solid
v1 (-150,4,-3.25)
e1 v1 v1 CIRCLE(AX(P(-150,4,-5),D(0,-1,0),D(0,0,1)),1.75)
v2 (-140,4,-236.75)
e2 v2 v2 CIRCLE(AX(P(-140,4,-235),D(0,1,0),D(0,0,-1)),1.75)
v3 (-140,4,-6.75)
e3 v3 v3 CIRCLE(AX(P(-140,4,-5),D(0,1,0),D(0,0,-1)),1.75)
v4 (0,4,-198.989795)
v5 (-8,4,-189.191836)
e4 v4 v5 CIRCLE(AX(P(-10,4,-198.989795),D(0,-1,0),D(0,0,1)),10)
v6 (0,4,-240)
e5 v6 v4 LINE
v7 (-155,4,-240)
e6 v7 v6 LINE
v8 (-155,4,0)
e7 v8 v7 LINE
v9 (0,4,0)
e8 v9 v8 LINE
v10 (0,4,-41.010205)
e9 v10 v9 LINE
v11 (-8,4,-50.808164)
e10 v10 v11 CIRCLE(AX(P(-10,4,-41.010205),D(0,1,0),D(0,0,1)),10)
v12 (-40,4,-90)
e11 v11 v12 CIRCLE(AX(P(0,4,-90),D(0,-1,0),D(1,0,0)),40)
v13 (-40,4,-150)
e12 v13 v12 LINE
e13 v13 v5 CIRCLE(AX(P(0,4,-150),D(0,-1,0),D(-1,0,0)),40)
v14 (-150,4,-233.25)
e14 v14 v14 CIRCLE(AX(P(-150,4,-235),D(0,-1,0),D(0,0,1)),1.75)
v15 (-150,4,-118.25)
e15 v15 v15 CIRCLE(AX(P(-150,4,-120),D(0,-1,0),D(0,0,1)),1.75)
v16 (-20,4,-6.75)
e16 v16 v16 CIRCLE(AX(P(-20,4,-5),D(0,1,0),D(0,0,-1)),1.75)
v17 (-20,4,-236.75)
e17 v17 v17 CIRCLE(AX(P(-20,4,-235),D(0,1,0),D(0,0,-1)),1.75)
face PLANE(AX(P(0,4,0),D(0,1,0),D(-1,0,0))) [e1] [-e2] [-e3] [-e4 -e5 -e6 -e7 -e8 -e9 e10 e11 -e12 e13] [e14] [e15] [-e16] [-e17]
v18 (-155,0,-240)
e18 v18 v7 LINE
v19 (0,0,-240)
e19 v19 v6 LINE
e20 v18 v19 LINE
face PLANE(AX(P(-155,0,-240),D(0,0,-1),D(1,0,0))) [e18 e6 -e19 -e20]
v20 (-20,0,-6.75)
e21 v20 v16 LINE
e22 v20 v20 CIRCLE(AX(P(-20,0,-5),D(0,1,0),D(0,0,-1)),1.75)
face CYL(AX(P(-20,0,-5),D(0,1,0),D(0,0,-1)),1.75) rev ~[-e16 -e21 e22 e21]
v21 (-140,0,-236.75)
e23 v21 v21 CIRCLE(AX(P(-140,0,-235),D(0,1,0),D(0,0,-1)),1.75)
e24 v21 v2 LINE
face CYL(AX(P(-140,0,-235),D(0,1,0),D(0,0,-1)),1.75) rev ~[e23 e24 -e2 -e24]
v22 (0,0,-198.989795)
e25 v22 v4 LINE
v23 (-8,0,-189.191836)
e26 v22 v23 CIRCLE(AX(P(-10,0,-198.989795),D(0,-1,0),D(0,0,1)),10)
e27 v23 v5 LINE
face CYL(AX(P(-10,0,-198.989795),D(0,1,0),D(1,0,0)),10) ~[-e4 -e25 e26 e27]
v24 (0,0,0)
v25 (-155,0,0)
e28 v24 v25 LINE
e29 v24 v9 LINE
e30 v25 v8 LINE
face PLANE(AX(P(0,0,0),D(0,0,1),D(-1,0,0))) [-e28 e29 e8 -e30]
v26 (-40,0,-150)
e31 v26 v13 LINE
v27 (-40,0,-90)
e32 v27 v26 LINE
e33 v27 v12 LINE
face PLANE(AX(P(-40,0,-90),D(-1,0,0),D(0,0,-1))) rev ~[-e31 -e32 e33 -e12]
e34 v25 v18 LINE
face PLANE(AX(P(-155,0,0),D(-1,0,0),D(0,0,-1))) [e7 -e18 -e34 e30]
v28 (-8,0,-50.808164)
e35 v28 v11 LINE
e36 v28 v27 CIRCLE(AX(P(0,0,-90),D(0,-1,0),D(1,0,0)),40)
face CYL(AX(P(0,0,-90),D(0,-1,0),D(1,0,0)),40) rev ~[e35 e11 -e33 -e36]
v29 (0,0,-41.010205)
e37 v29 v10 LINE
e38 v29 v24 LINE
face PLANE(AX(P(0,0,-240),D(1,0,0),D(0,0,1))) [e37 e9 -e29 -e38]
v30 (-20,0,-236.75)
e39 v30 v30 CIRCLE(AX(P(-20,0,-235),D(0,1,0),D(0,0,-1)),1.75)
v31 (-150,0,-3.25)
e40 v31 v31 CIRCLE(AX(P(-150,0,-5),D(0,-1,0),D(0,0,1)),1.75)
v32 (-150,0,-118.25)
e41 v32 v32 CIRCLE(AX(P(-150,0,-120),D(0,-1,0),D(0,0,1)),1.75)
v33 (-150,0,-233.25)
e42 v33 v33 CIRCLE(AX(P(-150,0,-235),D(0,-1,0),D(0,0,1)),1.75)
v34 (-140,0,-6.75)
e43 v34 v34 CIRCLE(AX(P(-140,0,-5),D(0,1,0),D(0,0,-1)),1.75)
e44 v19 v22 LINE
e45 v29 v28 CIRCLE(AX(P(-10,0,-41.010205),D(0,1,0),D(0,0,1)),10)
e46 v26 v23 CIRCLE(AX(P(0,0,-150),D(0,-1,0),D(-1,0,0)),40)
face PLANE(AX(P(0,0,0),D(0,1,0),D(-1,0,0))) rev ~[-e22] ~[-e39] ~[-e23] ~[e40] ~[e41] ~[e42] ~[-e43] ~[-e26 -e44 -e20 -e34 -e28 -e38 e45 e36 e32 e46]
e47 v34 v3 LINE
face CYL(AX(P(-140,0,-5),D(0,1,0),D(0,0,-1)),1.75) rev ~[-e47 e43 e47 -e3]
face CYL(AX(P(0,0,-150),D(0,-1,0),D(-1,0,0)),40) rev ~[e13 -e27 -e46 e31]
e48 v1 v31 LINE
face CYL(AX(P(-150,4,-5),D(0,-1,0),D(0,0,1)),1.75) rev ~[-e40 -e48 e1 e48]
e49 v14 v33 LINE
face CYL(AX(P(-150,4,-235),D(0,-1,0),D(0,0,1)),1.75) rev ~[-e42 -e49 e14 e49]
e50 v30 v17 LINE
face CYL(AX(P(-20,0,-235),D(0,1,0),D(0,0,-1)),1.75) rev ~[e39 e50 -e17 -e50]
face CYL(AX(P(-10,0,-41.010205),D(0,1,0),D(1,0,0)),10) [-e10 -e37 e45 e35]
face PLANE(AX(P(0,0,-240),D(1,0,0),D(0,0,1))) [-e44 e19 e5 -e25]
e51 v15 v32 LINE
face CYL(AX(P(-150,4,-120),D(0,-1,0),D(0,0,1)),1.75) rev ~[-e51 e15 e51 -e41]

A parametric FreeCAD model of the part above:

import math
import FreeCAD as App
import Part
import Sketcher


def edges_at(feature, points):
    """Names of the edges that pass closest to the given points."""
    edges = feature.Shape.Edges
    near = lambda p: min(range(len(edges)), key=lambda i: edges[i].distToShape(Part.Vertex(*p))[0])
    return sorted({f"Edge{near(p) + 1}" for p in points})


def add_polygon(sketch, points):
    """Adds a closed chain of lines whose ends are joined by coincident constraints."""
    first, n = sketch.GeometryCount, len(points)
    for a, b in zip(points, points[1:] + points[:1]):
        sketch.addGeometry(Part.LineSegment(App.Vector(*a, 0), App.Vector(*b, 0)), False)
    for i in range(n):
        sketch.addConstraint(Sketcher.Constraint("Coincident", first + i, 2, first + (i + 1) % n, 1))

doc = App.newDocument("Part")
params = doc.addObject("Spreadsheet::Sheet", "Params")
for row, (alias, value) in enumerate([
    ("sketch1_width", "155 mm"),
    ("sketch1_height", "240 mm"),
    ("pad1_length", "4 mm"),
    ("sketch2_diameter", "3.5 mm"),
    ("hole_diameter", "3.5 mm"),
    ("sketch3_radius", "40 mm"),
    ("sketch3_height", "140 mm"),
    ("pocket1_length", "10 mm"),
    ("sketch4_diameter", "3.5 mm"),
    ("hole2_diameter", "3.5 mm"),
    ("fillet_radius", "10 mm"),
], start=1):
    params.set(f"A{row}", alias)
    params.set(f"B{row}", "=" + value)
    params.setAlias(f"B{row}", alias)

body = doc.addObject("PartDesign::Body", "Body")

# Sketch on XZ plane
sketch1 = body.newObject("Sketcher::SketchObject", "Sketch")
sketch1.AttachmentSupport = (doc.getObject("XZ_Plane"), [""])
sketch1.MapMode = "FlatFace"
add_polygon(sketch1, [(-155, 0), (0, 0), (0, -240), (-155, -240)])  # lines 0-3
sketch1.addConstraint(Sketcher.Constraint("Horizontal", 0))
sketch1.addConstraint(Sketcher.Constraint("Vertical", 1))
sketch1.addConstraint(Sketcher.Constraint("Horizontal", 2))
sketch1.addConstraint(Sketcher.Constraint("Vertical", 3))
sketch1.addConstraint(Sketcher.Constraint("Coincident", 0, 2, -1, 1))
sketch1.addConstraint(Sketcher.Constraint("DistanceX", 0, 1, 0, 2, 155.0))
sketch1.addConstraint(Sketcher.Constraint("DistanceY", 1, 2, 1, 1, 240.0))
sketch1.setExpression("Constraints[9]", "Params.sketch1_width")
sketch1.setExpression("Constraints[10]", "Params.sketch1_height")
pad1 = body.newObject("PartDesign::Pad", "Pad")
pad1.Profile = sketch1
pad1.setExpression("Length", "Params.pad1_length")
pad1.Reversed = True

# Sketch on XZ plane
sketch2 = body.newObject("Sketcher::SketchObject", "Sketch001")
sketch2.AttachmentSupport = (doc.getObject("XZ_Plane"), [""])
sketch2.MapMode = "FlatFace"
sketch2.AttachmentOffset = App.Placement(App.Vector(0, 0, -4), App.Rotation())
sketch2.addGeometry(Part.Circle(App.Vector(-150, -5, 0), App.Vector(0, 0, 1), 1.8), False)
sketch2.addGeometry(Part.Circle(App.Vector(-150, -235, 0), App.Vector(0, 0, 1), 1.8), False)
sketch2.addGeometry(Part.Circle(App.Vector(-150, -120, 0), App.Vector(0, 0, 1), 1.8), False)
sketch2.addConstraint(Sketcher.Constraint("Equal", 0, 1))
sketch2.addConstraint(Sketcher.Constraint("Equal", 1, 2))
sketch2.addConstraint(Sketcher.Constraint("Vertical", 0, 3, 1, 3))
sketch2.addConstraint(Sketcher.Constraint("Vertical", 1, 3, 2, 3))
sketch2.addConstraint(Sketcher.Constraint("Diameter", 0, 3.5))
sketch2.addConstraint(Sketcher.Constraint("DistanceX", 0, 3, -1, 1, 150.0))
sketch2.addConstraint(Sketcher.Constraint("DistanceY", 0, 3, -1, 1, 5.0))
sketch2.addConstraint(Sketcher.Constraint("DistanceY", 1, 3, -1, 1, 235.0))
sketch2.addConstraint(Sketcher.Constraint("DistanceY", 2, 3, -1, 1, 120.0))
sketch2.setExpression("Constraints[4]", "Params.sketch2_diameter")
doc.recompute()
hole = body.newObject("PartDesign::Hole", "Hole")
hole.Profile = sketch2
hole.ThreadType = "None"
hole.setExpression("Diameter", "Params.hole_diameter")
hole.DepthType = "ThroughAll"
hole.Reversed = True

# Sketch on XZ plane
sketch3 = body.newObject("Sketcher::SketchObject", "Sketch002")
sketch3.AttachmentSupport = (doc.getObject("XZ_Plane"), [""])
sketch3.MapMode = "FlatFace"
sketch3.addGeometry(Part.LineSegment(App.Vector(0, -190, 0), App.Vector(0, -50, 0)), False)
sketch3.addGeometry(Part.ArcOfCircle(Part.Circle(App.Vector(0, -90, 0), App.Vector(0, 0, 1), 40), math.radians(90), math.radians(180)), False)
sketch3.addGeometry(Part.LineSegment(App.Vector(-40, -90, 0), App.Vector(-40, -150, 0)), False)
sketch3.addGeometry(Part.ArcOfCircle(Part.Circle(App.Vector(0, -150, 0), App.Vector(0, 0, 1), 40), math.radians(180), math.radians(270)), False)
sketch3.addConstraint(Sketcher.Constraint("Coincident", 0, 2, 1, 1))
sketch3.addConstraint(Sketcher.Constraint("Tangent", 1, 2, 2, 1))
sketch3.addConstraint(Sketcher.Constraint("Tangent", 2, 2, 3, 1))
sketch3.addConstraint(Sketcher.Constraint("Coincident", 3, 2, 0, 1))
sketch3.addConstraint(Sketcher.Constraint("Vertical", 0))
sketch3.addConstraint(Sketcher.Constraint("Vertical", 2))
sketch3.addConstraint(Sketcher.Constraint("Equal", 1, 3))
sketch3.addConstraint(Sketcher.Constraint("PointOnObject", 1, 3, -2))
sketch3.addConstraint(Sketcher.Constraint("PointOnObject", 0, 2, -2))
sketch3.addConstraint(Sketcher.Constraint("Radius", 1, 40.0))
sketch3.addConstraint(Sketcher.Constraint("DistanceY", 0, 1, 0, 2, 140.0))
sketch3.addConstraint(Sketcher.Constraint("DistanceY", 1, 3, -1, 1, 90.0))
sketch3.setExpression("Constraints[9]", "Params.sketch3_radius")
sketch3.setExpression("Constraints[10]", "Params.sketch3_height")
pocket1 = body.newObject("PartDesign::Pocket", "Pocket")
pocket1.Profile = sketch3
pocket1.setExpression("Length", "Params.pocket1_length")

# Sketch on XZ plane
sketch4 = body.newObject("Sketcher::SketchObject", "Sketch003")
sketch4.AttachmentSupport = (doc.getObject("XZ_Plane"), [""])
sketch4.MapMode = "FlatFace"
sketch4.addGeometry(Part.Circle(App.Vector(-20, -235, 0), App.Vector(0, 0, 1), 1.8), False)
sketch4.addGeometry(Part.Circle(App.Vector(-140, -235, 0), App.Vector(0, 0, 1), 1.8), False)
sketch4.addGeometry(Part.Circle(App.Vector(-140, -5, 0), App.Vector(0, 0, 1), 1.8), False)
sketch4.addGeometry(Part.Circle(App.Vector(-20, -5, 0), App.Vector(0, 0, 1), 1.8), False)
sketch4.addConstraint(Sketcher.Constraint("Equal", 0, 1))
sketch4.addConstraint(Sketcher.Constraint("Equal", 1, 2))
sketch4.addConstraint(Sketcher.Constraint("Equal", 2, 3))
sketch4.addConstraint(Sketcher.Constraint("Horizontal", 0, 3, 1, 3))
sketch4.addConstraint(Sketcher.Constraint("Horizontal", 2, 3, 3, 3))
sketch4.addConstraint(Sketcher.Constraint("Vertical", 1, 3, 2, 3))
sketch4.addConstraint(Sketcher.Constraint("Vertical", 0, 3, 3, 3))
sketch4.addConstraint(Sketcher.Constraint("Diameter", 0, 3.5))
sketch4.addConstraint(Sketcher.Constraint("DistanceX", 0, 3, -1, 1, 20.0))
sketch4.addConstraint(Sketcher.Constraint("DistanceY", 0, 3, -1, 1, 235.0))
sketch4.addConstraint(Sketcher.Constraint("DistanceX", 1, 3, -1, 1, 140.0))
sketch4.addConstraint(Sketcher.Constraint("DistanceY", 2, 3, -1, 1, 5.0))
sketch4.setExpression("Constraints[7]", "Params.sketch4_diameter")
doc.recompute()
hole2 = body.newObject("PartDesign::Hole", "Hole001")
hole2.Profile = sketch4
hole2.ThreadType = "None"
hole2.setExpression("Diameter", "Params.hole2_diameter")
hole2.DepthType = "ThroughAll"
doc.recompute()

fillet = body.newObject("PartDesign::Fillet", "Fillet")
fillet.Base = (hole2, edges_at(hole2, [(0, 2, -50), (0, 2, -190)]))
fillet.setExpression("Radius", "Params.fillet_radius")

doc.recompute()
